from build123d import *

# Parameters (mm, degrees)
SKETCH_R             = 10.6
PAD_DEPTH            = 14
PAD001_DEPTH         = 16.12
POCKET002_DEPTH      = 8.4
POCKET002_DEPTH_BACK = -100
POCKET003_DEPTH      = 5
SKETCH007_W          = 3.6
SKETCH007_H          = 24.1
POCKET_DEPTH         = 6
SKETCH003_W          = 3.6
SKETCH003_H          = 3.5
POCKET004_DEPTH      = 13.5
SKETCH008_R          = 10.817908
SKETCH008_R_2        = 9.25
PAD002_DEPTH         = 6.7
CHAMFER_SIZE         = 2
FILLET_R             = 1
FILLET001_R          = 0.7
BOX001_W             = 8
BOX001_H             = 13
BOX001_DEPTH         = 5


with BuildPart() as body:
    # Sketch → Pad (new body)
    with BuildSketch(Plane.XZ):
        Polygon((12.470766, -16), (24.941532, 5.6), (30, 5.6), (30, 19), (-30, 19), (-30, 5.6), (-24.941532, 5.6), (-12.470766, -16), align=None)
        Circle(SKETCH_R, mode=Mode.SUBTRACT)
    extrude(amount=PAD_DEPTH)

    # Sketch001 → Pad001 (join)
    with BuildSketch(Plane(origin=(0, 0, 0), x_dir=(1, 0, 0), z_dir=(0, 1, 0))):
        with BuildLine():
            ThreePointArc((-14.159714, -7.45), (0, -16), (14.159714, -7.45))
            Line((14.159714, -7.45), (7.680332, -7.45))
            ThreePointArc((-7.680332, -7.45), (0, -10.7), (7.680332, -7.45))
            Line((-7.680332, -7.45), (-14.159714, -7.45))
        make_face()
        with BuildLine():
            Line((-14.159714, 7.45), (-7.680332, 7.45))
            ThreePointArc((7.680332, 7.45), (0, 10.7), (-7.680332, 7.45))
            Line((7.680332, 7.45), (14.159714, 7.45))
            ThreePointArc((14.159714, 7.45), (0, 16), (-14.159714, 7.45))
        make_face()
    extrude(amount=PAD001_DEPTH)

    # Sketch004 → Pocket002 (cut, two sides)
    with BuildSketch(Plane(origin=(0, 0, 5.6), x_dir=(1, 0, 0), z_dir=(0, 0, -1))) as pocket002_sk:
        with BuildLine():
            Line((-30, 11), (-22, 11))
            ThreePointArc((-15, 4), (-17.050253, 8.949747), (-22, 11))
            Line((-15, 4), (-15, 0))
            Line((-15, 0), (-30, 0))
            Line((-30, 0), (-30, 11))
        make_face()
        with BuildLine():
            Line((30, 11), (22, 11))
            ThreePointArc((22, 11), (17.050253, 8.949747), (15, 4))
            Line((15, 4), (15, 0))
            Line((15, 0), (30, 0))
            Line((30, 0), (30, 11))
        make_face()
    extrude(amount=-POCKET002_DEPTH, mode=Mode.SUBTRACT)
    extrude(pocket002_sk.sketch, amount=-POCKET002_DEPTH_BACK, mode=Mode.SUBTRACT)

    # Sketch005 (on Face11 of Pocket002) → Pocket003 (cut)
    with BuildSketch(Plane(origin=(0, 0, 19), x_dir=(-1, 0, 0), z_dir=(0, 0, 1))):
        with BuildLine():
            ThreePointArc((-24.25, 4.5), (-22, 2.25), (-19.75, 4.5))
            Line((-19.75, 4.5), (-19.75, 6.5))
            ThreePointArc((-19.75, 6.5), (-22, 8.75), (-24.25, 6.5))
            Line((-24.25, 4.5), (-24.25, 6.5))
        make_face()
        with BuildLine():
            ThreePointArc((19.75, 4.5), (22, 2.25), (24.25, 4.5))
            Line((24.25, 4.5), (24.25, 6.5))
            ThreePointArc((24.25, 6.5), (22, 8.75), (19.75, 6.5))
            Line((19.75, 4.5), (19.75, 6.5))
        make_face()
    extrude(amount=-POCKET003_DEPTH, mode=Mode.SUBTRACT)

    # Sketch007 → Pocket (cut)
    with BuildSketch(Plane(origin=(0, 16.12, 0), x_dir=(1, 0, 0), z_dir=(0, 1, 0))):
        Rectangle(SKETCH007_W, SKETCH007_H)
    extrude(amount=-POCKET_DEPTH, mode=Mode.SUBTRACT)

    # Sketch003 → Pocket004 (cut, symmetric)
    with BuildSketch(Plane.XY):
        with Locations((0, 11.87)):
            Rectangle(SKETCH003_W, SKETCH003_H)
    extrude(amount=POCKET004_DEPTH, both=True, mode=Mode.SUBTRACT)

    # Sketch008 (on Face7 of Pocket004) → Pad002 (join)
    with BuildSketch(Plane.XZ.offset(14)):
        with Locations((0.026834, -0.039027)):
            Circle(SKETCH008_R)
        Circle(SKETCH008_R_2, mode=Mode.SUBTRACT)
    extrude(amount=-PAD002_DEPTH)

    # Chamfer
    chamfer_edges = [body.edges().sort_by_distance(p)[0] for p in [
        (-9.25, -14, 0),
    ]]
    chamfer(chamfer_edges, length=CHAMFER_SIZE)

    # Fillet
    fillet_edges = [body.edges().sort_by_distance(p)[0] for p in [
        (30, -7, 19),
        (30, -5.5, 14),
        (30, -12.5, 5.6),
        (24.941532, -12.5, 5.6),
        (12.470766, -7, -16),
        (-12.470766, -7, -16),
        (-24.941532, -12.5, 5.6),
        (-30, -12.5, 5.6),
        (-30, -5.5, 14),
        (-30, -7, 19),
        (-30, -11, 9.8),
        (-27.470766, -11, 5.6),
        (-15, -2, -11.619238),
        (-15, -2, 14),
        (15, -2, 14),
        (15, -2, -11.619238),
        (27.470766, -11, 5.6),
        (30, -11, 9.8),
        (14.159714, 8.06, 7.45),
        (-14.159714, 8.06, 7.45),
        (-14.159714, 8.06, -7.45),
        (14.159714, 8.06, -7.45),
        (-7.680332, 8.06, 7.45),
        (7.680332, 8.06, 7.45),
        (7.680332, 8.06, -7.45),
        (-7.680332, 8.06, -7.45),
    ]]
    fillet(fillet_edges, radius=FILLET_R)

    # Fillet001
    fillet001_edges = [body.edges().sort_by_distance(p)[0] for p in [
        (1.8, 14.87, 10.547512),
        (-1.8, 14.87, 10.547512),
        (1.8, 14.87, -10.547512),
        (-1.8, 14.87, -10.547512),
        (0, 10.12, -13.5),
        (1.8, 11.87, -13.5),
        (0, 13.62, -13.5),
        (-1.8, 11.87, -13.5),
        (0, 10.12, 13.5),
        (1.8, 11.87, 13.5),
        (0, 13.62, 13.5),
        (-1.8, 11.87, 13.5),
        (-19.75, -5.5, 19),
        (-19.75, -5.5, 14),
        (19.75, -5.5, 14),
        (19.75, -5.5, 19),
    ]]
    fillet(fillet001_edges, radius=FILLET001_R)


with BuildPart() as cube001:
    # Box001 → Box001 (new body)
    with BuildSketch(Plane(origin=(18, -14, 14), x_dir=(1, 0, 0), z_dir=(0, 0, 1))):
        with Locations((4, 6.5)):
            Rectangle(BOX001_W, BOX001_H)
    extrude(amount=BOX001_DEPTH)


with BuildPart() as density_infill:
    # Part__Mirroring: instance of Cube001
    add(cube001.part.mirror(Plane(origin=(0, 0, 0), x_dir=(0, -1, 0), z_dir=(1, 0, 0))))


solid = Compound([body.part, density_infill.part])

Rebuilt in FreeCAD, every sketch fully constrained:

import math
import FreeCAD as App
import Part
import Sketcher
Q = App.Units.Quantity


def edges_at(feature, points):
    """Names of the edges that pass closest to the given points."""
    edges = feature.Shape.Edges
    near = lambda p: min(range(len(edges)), key=lambda i: edges[i].distToShape(Part.Vertex(*p))[0])
    return sorted({f"Edge{near(p) + 1}" for p in points})

doc = App.newDocument("Part")
body = doc.addObject("PartDesign::Body", "Body")

sketch1 = body.newObject("Sketcher::SketchObject", "Sketch")
sketch1.AttachmentSupport = (doc.getObject("XZ_Plane"), [""])
sketch1.MapMode = "FlatFace"
sketch1.addGeometry([
    Part.LineSegment(App.Vector(12.470766, -16, 0), App.Vector(24.941532, 5.6, 0)),
    Part.LineSegment(App.Vector(24.941532, 5.6, 0), App.Vector(30, 5.6, 0)),
    Part.LineSegment(App.Vector(30, 5.6, 0), App.Vector(30, 19, 0)),
    Part.LineSegment(App.Vector(30, 19, 0), App.Vector(-30, 19, 0)),
    Part.LineSegment(App.Vector(-30, 19, 0), App.Vector(-30, 5.6, 0)),
    Part.LineSegment(App.Vector(-30, 5.6, 0), App.Vector(-24.941532, 5.6, 0)),
    Part.LineSegment(App.Vector(-24.941532, 5.6, 0), App.Vector(-12.470766, -16, 0)),
    Part.LineSegment(App.Vector(-12.470766, -16, 0), App.Vector(12.470766, -16, 0)),
    Part.Circle(App.Vector(0, 0, 0), App.Vector(0, 0, 1), 10.6),
], False)
sketch1.addConstraint([
    Sketcher.Constraint("Coincident", 0, 2, 1, 1),
    Sketcher.Constraint("Coincident", 1, 2, 2, 1),
    Sketcher.Constraint("Coincident", 2, 2, 3, 1),
    Sketcher.Constraint("Coincident", 3, 2, 4, 1),
    Sketcher.Constraint("Coincident", 4, 2, 5, 1),
    Sketcher.Constraint("Coincident", 5, 2, 6, 1),
    Sketcher.Constraint("Coincident", 6, 2, 7, 1),
    Sketcher.Constraint("Coincident", 7, 2, 0, 1),
    Sketcher.Constraint("Horizontal", 1),
    Sketcher.Constraint("Vertical", 2),
    Sketcher.Constraint("Horizontal", 3),
    Sketcher.Constraint("Vertical", 4),
    Sketcher.Constraint("Horizontal", 5),
    Sketcher.Constraint("Horizontal", 7),
    Sketcher.Constraint("Coincident", 8, 3, -1, 1),
    Sketcher.Constraint("Symmetric", 1, 2, 4, 2, -2),
    Sketcher.Constraint("Equal", 1, 5),
    Sketcher.Constraint("Equal", 0, 6),
    Sketcher.Constraint("Diameter", 8, 21.2),
    Sketcher.Constraint("DistanceX", 3, 2, 3, 1, 60.0),
    Sketcher.Constraint("Angle", 0, Q("60 deg")),
    Sketcher.Constraint("DistanceY", 2, 1, 2, 2, 13.4),
    Sketcher.Constraint("DistanceY", -1, 1, 2, 2, 19.0),
    Sketcher.Constraint("DistanceY", 6, 2, -1, 1, 16.0),
    Sketcher.Constraint("DistanceX", 1, 1, 1, 2, 5.058468),
])
pad1 = body.newObject("PartDesign::Pad", "Pad")
pad1.Profile = sketch1
pad1.Length = 14

sketch2 = body.newObject("Sketcher::SketchObject", "Sketch001")
sketch2.AttachmentSupport = (doc.getObject("XZ_Plane"), [""])
sketch2.MapMode = "FlatFace"
sketch2.addGeometry([
    Part.ArcOfCircle(Part.Circle(App.Vector(0, 0, 0), App.Vector(0, 0, 1), 16), math.radians(27.750679), math.radians(152.249321)),
    Part.LineSegment(App.Vector(14.159714, 7.45, 0), App.Vector(7.680332, 7.45, 0)),
    Part.ArcOfCircle(Part.Circle(App.Vector(0, 0, 0), App.Vector(0, 0, 1), 10.7), math.radians(44.127842), math.radians(135.872158)),
    Part.LineSegment(App.Vector(-7.680332, 7.45, 0), App.Vector(-14.159714, 7.45, 0)),
    Part.LineSegment(App.Vector(-14.159714, -7.45, 0), App.Vector(-7.680332, -7.45, 0)),
    Part.ArcOfCircle(Part.Circle(App.Vector(0, 0, 0), App.Vector(0, 0, 1), 10.7), math.radians(-135.872158), math.radians(-44.127842)),
    Part.LineSegment(App.Vector(7.680332, -7.45, 0), App.Vector(14.159714, -7.45, 0)),
    Part.ArcOfCircle(Part.Circle(App.Vector(0, 0, 0), App.Vector(0, 0, 1), 16), math.radians(-152.249321), math.radians(-27.750679)),
], False)
sketch2.addConstraint([
    Sketcher.Constraint("Coincident", 0, 1, 1, 1),
    Sketcher.Constraint("Coincident", 1, 2, 2, 1),
    Sketcher.Constraint("Coincident", 2, 2, 3, 1),
    Sketcher.Constraint("Coincident", 3, 2, 0, 2),
    Sketcher.Constraint("Coincident", 4, 2, 5, 1),
    Sketcher.Constraint("Coincident", 5, 2, 6, 1),
    Sketcher.Constraint("Coincident", 6, 2, 7, 2),
    Sketcher.Constraint("Coincident", 7, 1, 4, 1),
    Sketcher.Constraint("Horizontal", 1),
    Sketcher.Constraint("Horizontal", 3),
    Sketcher.Constraint("Horizontal", 4),
    Sketcher.Constraint("Horizontal", 6),
    Sketcher.Constraint("Coincident", 0, 3, -1, 1),
    Sketcher.Constraint("Coincident", 2, 3, -1, 1),
    Sketcher.Constraint("Coincident", 5, 3, -1, 1),
    Sketcher.Constraint("Coincident", 7, 3, -1, 1),
    Sketcher.Constraint("Equal", 2, 5),
    Sketcher.Constraint("Equal", 0, 7),
    Sketcher.Constraint("Horizontal", 1, 2, 2, 2),
    Sketcher.Constraint("Horizontal", 4, 2, 5, 2),
    Sketcher.Constraint("Vertical", 2, 2, 4, 2),
    Sketcher.Constraint("Radius", 0, 16.0),
    Sketcher.Constraint("Radius", 2, 10.7),
    Sketcher.Constraint("DistanceY", 4, 2, 2, 2, 14.9),
])
pad2 = body.newObject("PartDesign::Pad", "Pad001")
pad2.Profile = sketch2
pad2.Length = 16.12
pad2.Reversed = True

sketch3 = body.newObject("Sketcher::SketchObject", "Sketch002")
sketch3.AttachmentSupport = (doc.getObject("XY_Plane"), [""])
sketch3.MapMode = "FlatFace"
sketch3.AttachmentOffset = App.Placement(App.Vector(0, 0, 5.6), App.Rotation())
sketch3.addGeometry([
    Part.LineSegment(App.Vector(-22, -11, 0), App.Vector(-30, -11, 0)),
    Part.LineSegment(App.Vector(-30, -11, 0), App.Vector(-30, 0, 0)),
    Part.LineSegment(App.Vector(-30, 0, 0), App.Vector(-15, 0, 0)),
    Part.LineSegment(App.Vector(-15, 0, 0), App.Vector(-15, -4, 0)),
    Part.ArcOfCircle(Part.Circle(App.Vector(-22.000002, -3.999998, 0), App.Vector(0, 0, 1), 7.000002), math.radians(-89.999987), math.radians(-0.000013)),
    Part.LineSegment(App.Vector(30, -11, 0), App.Vector(22, -11, 0)),
    Part.ArcOfCircle(Part.Circle(App.Vector(22.000002, -3.999998, 0), App.Vector(0, 0, 1), 7.000002), math.radians(-179.999987), math.radians(-90.000013)),
    Part.LineSegment(App.Vector(15, -4, 0), App.Vector(15, 0, 0)),
    Part.LineSegment(App.Vector(15, 0, 0), App.Vector(30, 0, 0)),
    Part.LineSegment(App.Vector(30, 0, 0), App.Vector(30, -11, 0)),
], False)
sketch3.addConstraint([
    Sketcher.Constraint("Coincident", 0, 2, 1, 1),
    Sketcher.Constraint("Coincident", 1, 2, 2, 1),
    Sketcher.Constraint("Coincident", 2, 2, 3, 1),
    Sketcher.Constraint("Tangent", 3, 2, 4, 2),
    Sketcher.Constraint("Tangent", 4, 1, 0, 1),
    Sketcher.Constraint("Tangent", 5, 2, 6, 2),
    Sketcher.Constraint("Tangent", 6, 1, 7, 1),
    Sketcher.Constraint("Coincident", 7, 2, 8, 1),
    Sketcher.Constraint("Coincident", 8, 2, 9, 1),
    Sketcher.Constraint("Coincident", 9, 2, 5, 1),
    Sketcher.Constraint("Horizontal", 0),
    Sketcher.Constraint("Vertical", 1),
    Sketcher.Constraint("Horizontal", 2),
    Sketcher.Constraint("Vertical", 3),
    Sketcher.Constraint("Horizontal", 5),
    Sketcher.Constraint("Vertical", 7),
    Sketcher.Constraint("Horizontal", 8),
    Sketcher.Constraint("Vertical", 9),
    Sketcher.Constraint("Equal", 4, 6),
    Sketcher.Constraint("Symmetric", 2, 2, 7, 2, -1, 1),
    Sketcher.Constraint("Symmetric", 1, 2, 8, 2, -2),
    Sketcher.Constraint("Horizontal", 4, 3, 6, 3),
    Sketcher.Constraint("Radius", 4, 7.000002),
    Sketcher.Constraint("DistanceX", 0, 2, 0, 1, 8.0),
    Sketcher.Constraint("DistanceY", 1, 1, 1, 2, 11.0),
    Sketcher.Constraint("DistanceX", 4, 3, -1, 1, 22.000002),
])
pocket1 = body.newObject("PartDesign::Pocket", "Pocket")
pocket1.Profile = sketch3
pocket1.Type = "TwoLengths"
pocket1.Length = 8.4
pocket1.Length2 = 100
pocket1.Reversed = True

sketch4 = body.newObject("Sketcher::SketchObject", "Sketch003")
sketch4.AttachmentSupport = (doc.getObject("XY_Plane"), [""])
sketch4.MapMode = "FlatFace"
sketch4.AttachmentOffset = App.Placement(App.Vector(0, 0, 19), App.Rotation())
sketch4.addGeometry([
    Part.ArcOfCircle(Part.Circle(App.Vector(22, -4.5, 0), App.Vector(0, 0, 1), 2.25), math.radians(0), math.radians(180)),
    Part.LineSegment(App.Vector(19.75, -4.5, 0), App.Vector(19.75, -6.5, 0)),
    Part.ArcOfCircle(Part.Circle(App.Vector(22, -6.5, 0), App.Vector(0, 0, 1), 2.25), math.radians(180), math.radians(360)),
    Part.LineSegment(App.Vector(24.25, -6.5, 0), App.Vector(24.25, -4.5, 0)),
    Part.ArcOfCircle(Part.Circle(App.Vector(-22, -4.5, 0), App.Vector(0, 0, 1), 2.25), math.radians(0), math.radians(180)),
    Part.LineSegment(App.Vector(-24.25, -4.5, 0), App.Vector(-24.25, -6.5, 0)),
    Part.ArcOfCircle(Part.Circle(App.Vector(-22, -6.5, 0), App.Vector(0, 0, 1), 2.25), math.radians(180), math.radians(360)),
    Part.LineSegment(App.Vector(-19.75, -6.5, 0), App.Vector(-19.75, -4.5, 0)),
], False)
sketch4.addConstraint([
    Sketcher.Constraint("Tangent", 0, 2, 1, 1),
    Sketcher.Constraint("Tangent", 1, 2, 2, 1),
    Sketcher.Constraint("Tangent", 2, 2, 3, 1),
    Sketcher.Constraint("Tangent", 3, 2, 0, 1),
    Sketcher.Constraint("Tangent", 4, 2, 5, 1),
    Sketcher.Constraint("Tangent", 5, 2, 6, 1),
    Sketcher.Constraint("Tangent", 6, 2, 7, 1),
    Sketcher.Constraint("Tangent", 7, 2, 4, 1),
    Sketcher.Constraint("Vertical", 1),
    Sketcher.Constraint("Vertical", 3),
    Sketcher.Constraint("Vertical", 5),
    Sketcher.Constraint("Vertical", 7),
    Sketcher.Constraint("Equal", 2, 4),
    Sketcher.Constraint("Symmetric", 0, 3, 4, 3, -2),
    Sketcher.Constraint("Horizontal", 2, 3, 6, 3),
    Sketcher.Constraint("DistanceY", 1, 2, 1, 1, 2.0),
    Sketcher.Constraint("Radius", 0, 2.25),
    Sketcher.Constraint("DistanceX", -1, 1, 0, 3, 22.0),
    Sketcher.Constraint("DistanceY", 0, 3, -1, 1, 4.5),
])
pocket2 = body.newObject("PartDesign::Pocket", "Pocket001")
pocket2.Profile = sketch4
pocket2.Length = 5

sketch5 = body.newObject("Sketcher::SketchObject", "Sketch004")
sketch5.AttachmentSupport = (doc.getObject("XZ_Plane"), [""])
sketch5.MapMode = "FlatFace"
sketch5.AttachmentOffset = App.Placement(App.Vector(0, 0, -16.12), App.Rotation())
sketch5.addGeometry([
    Part.LineSegment(App.Vector(-1.8, -12.05, 0), App.Vector(-1.8, 12.05, 0)),
    Part.LineSegment(App.Vector(-1.8, 12.05, 0), App.Vector(1.8, 12.05, 0)),
    Part.LineSegment(App.Vector(1.8, 12.05, 0), App.Vector(1.8, -12.05, 0)),
    Part.LineSegment(App.Vector(1.8, -12.05, 0), App.Vector(-1.8, -12.05, 0)),
], False)
sketch5.addConstraint([
    Sketcher.Constraint("Coincident", 0, 2, 1, 1),
    Sketcher.Constraint("Coincident", 1, 2, 2, 1),
    Sketcher.Constraint("Coincident", 2, 2, 3, 1),
    Sketcher.Constraint("Coincident", 3, 2, 0, 1),
    Sketcher.Constraint("Vertical", 0),
    Sketcher.Constraint("Horizontal", 1),
    Sketcher.Constraint("Vertical", 2),
    Sketcher.Constraint("Horizontal", 3),
    Sketcher.Constraint("Symmetric", 0, 2, 2, 2, -1, 1),
    Sketcher.Constraint("DistanceX", 1, 1, 1, 2, 3.6),
    Sketcher.Constraint("DistanceY", 0, 1, 0, 2, 24.1),
])
pocket3 = body.newObject("PartDesign::Pocket", "Pocket002")
pocket3.Profile = sketch5
pocket3.Length = 6
pocket3.Reversed = True

sketch6 = body.newObject("Sketcher::SketchObject", "Sketch005")
sketch6.AttachmentSupport = (doc.getObject("XY_Plane"), [""])
sketch6.MapMode = "FlatFace"
sketch6.addGeometry([
    Part.LineSegment(App.Vector(-1.8, 13.62, 0), App.Vector(-1.8, 10.12, 0)),
    Part.LineSegment(App.Vector(-1.8, 10.12, 0), App.Vector(1.8, 10.12, 0)),
    Part.LineSegment(App.Vector(1.8, 10.12, 0), App.Vector(1.8, 13.62, 0)),
    Part.LineSegment(App.Vector(1.8, 13.62, 0), App.Vector(-1.8, 13.62, 0)),
], False)
sketch6.addConstraint([
    Sketcher.Constraint("Coincident", 0, 2, 1, 1),
    Sketcher.Constraint("Coincident", 1, 2, 2, 1),
    Sketcher.Constraint("Coincident", 2, 2, 3, 1),
    Sketcher.Constraint("Coincident", 3, 2, 0, 1),
    Sketcher.Constraint("Vertical", 0),
    Sketcher.Constraint("Horizontal", 1),
    Sketcher.Constraint("Vertical", 2),
    Sketcher.Constraint("Horizontal", 3),
    Sketcher.Constraint("DistanceX", 1, 1, 1, 2, 3.6),
    Sketcher.Constraint("DistanceY", 0, 2, 0, 1, 3.5),
    Sketcher.Constraint("DistanceX", 0, 2, -1, 1, 1.8),
    Sketcher.Constraint("DistanceY", -1, 1, 0, 2, 10.12),
])
pocket4 = body.newObject("PartDesign::Pocket", "Pocket003")
pocket4.Profile = sketch6
pocket4.Length = 27
pocket4.Midplane = True

sketch7 = body.newObject("Sketcher::SketchObject", "Sketch006")
sketch7.AttachmentSupport = (doc.getObject("XZ_Plane"), [""])
sketch7.MapMode = "FlatFace"
sketch7.AttachmentOffset = App.Placement(App.Vector(0, 0, 14), App.Rotation())
sketch7.addGeometry([
    Part.Circle(App.Vector(0.026834, -0.039027, 0), App.Vector(0, 0, 1), 10.817908),
    Part.Circle(App.Vector(0, 0, 0), App.Vector(0, 0, 1), 9.25),
], False)
sketch7.addConstraint([
    Sketcher.Constraint("Coincident", 1, 3, -1, 1),
    Sketcher.Constraint("Diameter", 1, 18.5),
    Sketcher.Constraint("Diameter", 0, 21.635816),
    Sketcher.Constraint("DistanceX", -1, 1, 0, 3, 0.026834),
    Sketcher.Constraint("DistanceY", 0, 3, -1, 1, 0.039027),
])
pad3 = body.newObject("PartDesign::Pad", "Pad002")
pad3.Profile = sketch7
pad3.Length = 6.7
pad3.Reversed = True
doc.recompute()

chamfer = body.newObject("PartDesign::Chamfer", "Chamfer")
chamfer.Base = (pad3, edges_at(pad3, [(-9.25, -14, 0)]))
chamfer.Size = 2
doc.recompute()

fillet = body.newObject("PartDesign::Fillet", "Fillet")
fillet.Base = (chamfer, edges_at(chamfer, [
    (30, -7, 19),
    (30, -5.5, 14),
    (30, -12.5, 5.6),
    (24.942, -12.5, 5.6),
    (12.471, -7, -16),
    (-12.471, -7, -16),
    (-24.942, -12.5, 5.6),
    (-30, -12.5, 5.6),
    (-30, -5.5, 14),
    (-30, -7, 19),
    (-30, -11, 9.8),
    (-27.471, -11, 5.6),
    (-15, -2, -11.619),
    (-15, -2, 14),
    (15, -2, 14),
    (15, -2, -11.619),
    (27.471, -11, 5.6),
    (30, -11, 9.8),
    (14.16, 8.06, 7.45),
    (-14.16, 8.06, 7.45),
    (-14.16, 8.06, -7.45),
    (14.16, 8.06, -7.45),
    (-7.68, 8.06, 7.45),
    (7.68, 8.06, 7.45),
    (7.68, 8.06, -7.45),
    (-7.68, 8.06, -7.45),
]))
fillet.Radius = 1
doc.recompute()

fillet2 = body.newObject("PartDesign::Fillet", "Fillet001")
fillet2.Base = (fillet, edges_at(fillet, [
    (1.8, 13.12, 10.548),
    (-1.8, 13.12, 10.548),
    (1.8, 13.12, -10.548),
    (-1.8, 13.12, -10.548),
    (0, 10.12, -13.5),
    (1.8, 11.87, -13.5),
    (0, 13.62, -13.5),
    (-1.8, 11.87, -13.5),
    (0, 10.12, 13.5),
    (1.8, 11.87, 13.5),
    (0, 13.62, 13.5),
    (-1.8, 11.87, 13.5),
    (-19.75, -5.5, 19),
    (-19.75, -5.5, 14),
    (19.75, -5.5, 14),
    (19.75, -5.5, 19),
]))
fillet2.Radius = 0.7
body2 = doc.addObject("PartDesign::Body", "Body001")

sketch8 = body2.newObject("Sketcher::SketchObject", "Sketch007")
sketch8.AttachmentSupport = (doc.getObject("XY_Plane001"), [""])
sketch8.MapMode = "FlatFace"
sketch8.AttachmentOffset = App.Placement(App.Vector(0, 0, 14), App.Rotation())
sketch8.addGeometry([
    Part.LineSegment(App.Vector(18, -1, 0), App.Vector(18, -14, 0)),
    Part.LineSegment(App.Vector(18, -14, 0), App.Vector(26, -14, 0)),
    Part.LineSegment(App.Vector(26, -14, 0), App.Vector(26, -1, 0)),
    Part.LineSegment(App.Vector(26, -1, 0), App.Vector(18, -1, 0)),
], False)
sketch8.addConstraint([
    Sketcher.Constraint("Coincident", 0, 2, 1, 1),
    Sketcher.Constraint("Coincident", 1, 2, 2, 1),
    Sketcher.Constraint("Coincident", 2, 2, 3, 1),
    Sketcher.Constraint("Coincident", 3, 2, 0, 1),
    Sketcher.Constraint("Vertical", 0),
    Sketcher.Constraint("Horizontal", 1),
    Sketcher.Constraint("Vertical", 2),
    Sketcher.Constraint("Horizontal", 3),
    Sketcher.Constraint("DistanceX", 1, 1, 1, 2, 8.0),
    Sketcher.Constraint("DistanceY", 0, 2, 0, 1, 13.0),
    Sketcher.Constraint("DistanceX", -1, 1, 0, 2, 18.0),
    Sketcher.Constraint("DistanceY", 0, 2, -1, 1, 14.0),
])
pad4 = body2.newObject("PartDesign::Pad", "Pad003")
pad4.Profile = sketch8
pad4.Length = 5
body3 = doc.addObject("PartDesign::Body", "Body002")
doc.recompute()

mirroring = doc.addObject("Part::Mirroring", "Mirroring")
mirroring.Source = body2
mirroring.Base = App.Vector(0, 0, 0)
mirroring.Normal = App.Vector(1, 0, 0)
body3.BaseFeature = mirroring
doc.recompute()
body2.Visibility = False
mirroring.Visibility = False

doc.recompute()
